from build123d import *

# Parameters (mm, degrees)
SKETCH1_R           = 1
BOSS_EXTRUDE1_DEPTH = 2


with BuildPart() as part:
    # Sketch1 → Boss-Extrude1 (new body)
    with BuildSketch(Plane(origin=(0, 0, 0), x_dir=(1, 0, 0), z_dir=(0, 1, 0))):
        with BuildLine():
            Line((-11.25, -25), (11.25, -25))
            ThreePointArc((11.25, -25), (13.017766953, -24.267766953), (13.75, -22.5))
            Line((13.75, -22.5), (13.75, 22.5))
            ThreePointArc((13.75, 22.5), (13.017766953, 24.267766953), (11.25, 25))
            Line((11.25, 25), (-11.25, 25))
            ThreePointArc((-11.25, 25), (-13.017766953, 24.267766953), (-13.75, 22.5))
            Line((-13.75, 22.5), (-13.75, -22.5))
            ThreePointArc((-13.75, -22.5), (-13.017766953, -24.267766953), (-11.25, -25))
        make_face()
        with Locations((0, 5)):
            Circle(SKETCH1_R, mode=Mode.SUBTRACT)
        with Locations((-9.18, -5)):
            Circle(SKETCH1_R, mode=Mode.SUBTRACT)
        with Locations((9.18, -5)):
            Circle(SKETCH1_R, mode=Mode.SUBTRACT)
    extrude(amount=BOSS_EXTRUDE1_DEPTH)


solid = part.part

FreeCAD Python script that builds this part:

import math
import FreeCAD as App
import Part
import Sketcher
Q = App.Units.Quantity

doc = App.newDocument("Part")
body = doc.addObject("PartDesign::Body", "Body")

# Sketch on XZ plane
sketch1 = body.newObject("Sketcher::SketchObject", "Sketch")
sketch1.AttachmentSupport = (doc.getObject("XZ_Plane"), [""])
sketch1.MapMode = "FlatFace"
sketch1.addGeometry([
    Part.LineSegment(App.Vector(-11.25, 25, 0), App.Vector(11.25, 25, 0)),  # 0
    Part.ArcOfCircle(Part.Circle(App.Vector(11.25, 22.5, 0), App.Vector(0, 0, 1), 2.5), math.radians(0), math.radians(90)),  # 1
    Part.LineSegment(App.Vector(13.75, 22.5, 0), App.Vector(13.75, -22.5, 0)),  # 2
    Part.ArcOfCircle(Part.Circle(App.Vector(11.25, -22.5, 0), App.Vector(0, 0, 1), 2.5), math.radians(-90), math.radians(0)),  # 3
    Part.LineSegment(App.Vector(11.25, -25, 0), App.Vector(-11.25, -25, 0)),  # 4
    Part.ArcOfCircle(Part.Circle(App.Vector(-11.25, -22.5, 0), App.Vector(0, 0, 1), 2.5), math.radians(180), math.radians(270)),  # 5
    Part.LineSegment(App.Vector(-13.75, -22.5, 0), App.Vector(-13.75, 22.5, 0)),  # 6
    Part.ArcOfCircle(Part.Circle(App.Vector(-11.25, 22.5, 0), App.Vector(0, 0, 1), 2.5), math.radians(90), math.radians(180)),  # 7
    Part.Circle(App.Vector(-9.18, 5, 0), App.Vector(0, 0, 1), 1),  # 8
    Part.Circle(App.Vector(9.18, 5, 0), App.Vector(0, 0, 1), 1),  # 9
    Part.Circle(App.Vector(0, -5, 0), App.Vector(0, 0, 1), 1),  # 10
], False)
sketch1.addConstraint([
    Sketcher.Constraint("Tangent", 0, 2, 1, 2),
    Sketcher.Constraint("Tangent", 1, 1, 2, 1),
    Sketcher.Constraint("Tangent", 2, 2, 3, 2),
    Sketcher.Constraint("Tangent", 3, 1, 4, 1),
    Sketcher.Constraint("Tangent", 4, 2, 5, 2),
    Sketcher.Constraint("Tangent", 5, 1, 6, 1),
    Sketcher.Constraint("Tangent", 6, 2, 7, 2),
    Sketcher.Constraint("Tangent", 7, 1, 0, 1),
    Sketcher.Constraint("Horizontal", 0),
    Sketcher.Constraint("Vertical", 2),
    Sketcher.Constraint("Horizontal", 4),
    Sketcher.Constraint("Vertical", 6),
    Sketcher.Constraint("Equal", 1, 3),
    Sketcher.Constraint("Equal", 3, 5),
    Sketcher.Constraint("Equal", 5, 7),
    Sketcher.Constraint("Equal", 8, 9),
    Sketcher.Constraint("Equal", 9, 10),
    Sketcher.Constraint("Symmetric", 1, 3, 5, 3, -1, 1),
    Sketcher.Constraint("Symmetric", 8, 3, 9, 3, -2),
    Sketcher.Constraint("PointOnObject", 10, 3, -2),
    Sketcher.Constraint("Diameter", 8, Q("2 mm")),
    Sketcher.Constraint("Radius", 1, Q("2.5 mm")),
    Sketcher.Constraint("DistanceY", 2, 2, 2, 1, Q("45 mm")),
    Sketcher.Constraint("DistanceX", 0, 1, 0, 2, Q("22.5 mm")),
    Sketcher.Constraint("DistanceY", -1, 1, 8, 3, Q("5 mm")),
    Sketcher.Constraint("DistanceY", 10, 3, -1, 1, Q("5 mm")),
    Sketcher.Constraint("DistanceX", 8, 3, -1, 1, Q("9.18 mm")),
])
pad1 = body.newObject("PartDesign::Pad", "Pad")
pad1.Profile = sketch1
pad1.Length = 2
pad1.Reversed = True

doc.recompute()
